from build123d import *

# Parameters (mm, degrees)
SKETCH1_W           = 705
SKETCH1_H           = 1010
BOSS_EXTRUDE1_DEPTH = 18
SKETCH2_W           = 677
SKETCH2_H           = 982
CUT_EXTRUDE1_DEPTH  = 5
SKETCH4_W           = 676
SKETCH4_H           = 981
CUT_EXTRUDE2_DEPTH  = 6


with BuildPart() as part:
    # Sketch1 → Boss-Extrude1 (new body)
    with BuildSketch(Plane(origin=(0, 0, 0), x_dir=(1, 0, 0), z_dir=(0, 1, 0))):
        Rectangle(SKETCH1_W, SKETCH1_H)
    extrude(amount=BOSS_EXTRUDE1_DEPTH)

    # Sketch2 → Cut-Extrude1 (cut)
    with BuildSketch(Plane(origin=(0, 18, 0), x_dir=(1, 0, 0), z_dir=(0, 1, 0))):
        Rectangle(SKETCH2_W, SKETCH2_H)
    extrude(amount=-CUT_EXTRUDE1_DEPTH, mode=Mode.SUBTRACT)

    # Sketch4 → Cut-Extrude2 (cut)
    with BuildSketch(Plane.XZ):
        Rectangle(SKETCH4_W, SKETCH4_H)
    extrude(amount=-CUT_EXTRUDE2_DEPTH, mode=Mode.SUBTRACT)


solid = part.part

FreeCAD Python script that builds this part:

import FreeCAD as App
import Part
import Sketcher
Q = App.Units.Quantity

doc = App.newDocument("Part")
body = doc.addObject("PartDesign::Body", "Body")

sketch1 = body.newObject("Sketcher::SketchObject", "Sketch")
sketch1.AttachmentSupport = (doc.getObject("XZ_Plane"), [""])
sketch1.MapMode = "FlatFace"
sketch1.addGeometry([
    Part.LineSegment(App.Vector(-352.5, -505, 0), App.Vector(-352.5, 505, 0)),
    Part.LineSegment(App.Vector(-352.5, 505, 0), App.Vector(352.5, 505, 0)),
    Part.LineSegment(App.Vector(352.5, 505, 0), App.Vector(352.5, -505, 0)),
    Part.LineSegment(App.Vector(352.5, -505, 0), App.Vector(-352.5, -505, 0)),
], False)
sketch1.addConstraint([
    Sketcher.Constraint("Coincident", 0, 2, 1, 1),
    Sketcher.Constraint("Coincident", 1, 2, 2, 1),
    Sketcher.Constraint("Coincident", 2, 2, 3, 1),
    Sketcher.Constraint("Coincident", 3, 2, 0, 1),
    Sketcher.Constraint("Vertical", 0),
    Sketcher.Constraint("Horizontal", 1),
    Sketcher.Constraint("Vertical", 2),
    Sketcher.Constraint("Horizontal", 3),
    Sketcher.Constraint("Symmetric", 0, 2, 2, 2, -1, 1),
    Sketcher.Constraint("DistanceX", 1, 1, 1, 2, Q("705 mm")),
    Sketcher.Constraint("DistanceY", 0, 1, 0, 2, Q("1010 mm")),
])
pad1 = body.newObject("PartDesign::Pad", "Pad")
pad1.Profile = sketch1
pad1.Length = 18
pad1.Reversed = True

sketch2 = body.newObject("Sketcher::SketchObject", "Sketch001")
sketch2.AttachmentSupport = (doc.getObject("XZ_Plane"), [""])
sketch2.MapMode = "FlatFace"
sketch2.AttachmentOffset = App.Placement(App.Vector(0, 0, -18), App.Rotation())
sketch2.addGeometry([
    Part.LineSegment(App.Vector(-338.5, -491, 0), App.Vector(-338.5, 491, 0)),
    Part.LineSegment(App.Vector(-338.5, 491, 0), App.Vector(338.5, 491, 0)),
    Part.LineSegment(App.Vector(338.5, 491, 0), App.Vector(338.5, -491, 0)),
    Part.LineSegment(App.Vector(338.5, -491, 0), App.Vector(-338.5, -491, 0)),
], False)
sketch2.addConstraint([
    Sketcher.Constraint("Coincident", 0, 2, 1, 1),
    Sketcher.Constraint("Coincident", 1, 2, 2, 1),
    Sketcher.Constraint("Coincident", 2, 2, 3, 1),
    Sketcher.Constraint("Coincident", 3, 2, 0, 1),
    Sketcher.Constraint("Vertical", 0),
    Sketcher.Constraint("Horizontal", 1),
    Sketcher.Constraint("Vertical", 2),
    Sketcher.Constraint("Horizontal", 3),
    Sketcher.Constraint("Symmetric", 0, 2, 2, 2, -1, 1),
    Sketcher.Constraint("DistanceX", 1, 1, 1, 2, Q("677 mm")),
    Sketcher.Constraint("DistanceY", 0, 1, 0, 2, Q("982 mm")),
])
pocket1 = body.newObject("PartDesign::Pocket", "Pocket")
pocket1.Profile = sketch2
pocket1.Length = 5
pocket1.Reversed = True

sketch3 = body.newObject("Sketcher::SketchObject", "Sketch002")
sketch3.AttachmentSupport = (doc.getObject("XZ_Plane"), [""])
sketch3.MapMode = "FlatFace"
sketch3.addGeometry([
    Part.LineSegment(App.Vector(-338, 490.5, 0), App.Vector(-338, -490.5, 0)),
    Part.LineSegment(App.Vector(-338, -490.5, 0), App.Vector(338, -490.5, 0)),
    Part.LineSegment(App.Vector(338, -490.5, 0), App.Vector(338, 490.5, 0)),
    Part.LineSegment(App.Vector(338, 490.5, 0), App.Vector(-338, 490.5, 0)),
], False)
sketch3.addConstraint([
    Sketcher.Constraint("Coincident", 0, 2, 1, 1),
    Sketcher.Constraint("Coincident", 1, 2, 2, 1),
    Sketcher.Constraint("Coincident", 2, 2, 3, 1),
    Sketcher.Constraint("Coincident", 3, 2, 0, 1),
    Sketcher.Constraint("Vertical", 0),
    Sketcher.Constraint("Horizontal", 1),
    Sketcher.Constraint("Vertical", 2),
    Sketcher.Constraint("Horizontal", 3),
    Sketcher.Constraint("Symmetric", 0, 2, 2, 2, -1, 1),
    Sketcher.Constraint("DistanceX", 1, 1, 1, 2, Q("676 mm")),
    Sketcher.Constraint("DistanceY", 0, 2, 0, 1, Q("981 mm")),
])
pocket2 = body.newObject("PartDesign::Pocket", "Pocket001")
pocket2.Profile = sketch3
pocket2.Length = 6

doc.recompute()
